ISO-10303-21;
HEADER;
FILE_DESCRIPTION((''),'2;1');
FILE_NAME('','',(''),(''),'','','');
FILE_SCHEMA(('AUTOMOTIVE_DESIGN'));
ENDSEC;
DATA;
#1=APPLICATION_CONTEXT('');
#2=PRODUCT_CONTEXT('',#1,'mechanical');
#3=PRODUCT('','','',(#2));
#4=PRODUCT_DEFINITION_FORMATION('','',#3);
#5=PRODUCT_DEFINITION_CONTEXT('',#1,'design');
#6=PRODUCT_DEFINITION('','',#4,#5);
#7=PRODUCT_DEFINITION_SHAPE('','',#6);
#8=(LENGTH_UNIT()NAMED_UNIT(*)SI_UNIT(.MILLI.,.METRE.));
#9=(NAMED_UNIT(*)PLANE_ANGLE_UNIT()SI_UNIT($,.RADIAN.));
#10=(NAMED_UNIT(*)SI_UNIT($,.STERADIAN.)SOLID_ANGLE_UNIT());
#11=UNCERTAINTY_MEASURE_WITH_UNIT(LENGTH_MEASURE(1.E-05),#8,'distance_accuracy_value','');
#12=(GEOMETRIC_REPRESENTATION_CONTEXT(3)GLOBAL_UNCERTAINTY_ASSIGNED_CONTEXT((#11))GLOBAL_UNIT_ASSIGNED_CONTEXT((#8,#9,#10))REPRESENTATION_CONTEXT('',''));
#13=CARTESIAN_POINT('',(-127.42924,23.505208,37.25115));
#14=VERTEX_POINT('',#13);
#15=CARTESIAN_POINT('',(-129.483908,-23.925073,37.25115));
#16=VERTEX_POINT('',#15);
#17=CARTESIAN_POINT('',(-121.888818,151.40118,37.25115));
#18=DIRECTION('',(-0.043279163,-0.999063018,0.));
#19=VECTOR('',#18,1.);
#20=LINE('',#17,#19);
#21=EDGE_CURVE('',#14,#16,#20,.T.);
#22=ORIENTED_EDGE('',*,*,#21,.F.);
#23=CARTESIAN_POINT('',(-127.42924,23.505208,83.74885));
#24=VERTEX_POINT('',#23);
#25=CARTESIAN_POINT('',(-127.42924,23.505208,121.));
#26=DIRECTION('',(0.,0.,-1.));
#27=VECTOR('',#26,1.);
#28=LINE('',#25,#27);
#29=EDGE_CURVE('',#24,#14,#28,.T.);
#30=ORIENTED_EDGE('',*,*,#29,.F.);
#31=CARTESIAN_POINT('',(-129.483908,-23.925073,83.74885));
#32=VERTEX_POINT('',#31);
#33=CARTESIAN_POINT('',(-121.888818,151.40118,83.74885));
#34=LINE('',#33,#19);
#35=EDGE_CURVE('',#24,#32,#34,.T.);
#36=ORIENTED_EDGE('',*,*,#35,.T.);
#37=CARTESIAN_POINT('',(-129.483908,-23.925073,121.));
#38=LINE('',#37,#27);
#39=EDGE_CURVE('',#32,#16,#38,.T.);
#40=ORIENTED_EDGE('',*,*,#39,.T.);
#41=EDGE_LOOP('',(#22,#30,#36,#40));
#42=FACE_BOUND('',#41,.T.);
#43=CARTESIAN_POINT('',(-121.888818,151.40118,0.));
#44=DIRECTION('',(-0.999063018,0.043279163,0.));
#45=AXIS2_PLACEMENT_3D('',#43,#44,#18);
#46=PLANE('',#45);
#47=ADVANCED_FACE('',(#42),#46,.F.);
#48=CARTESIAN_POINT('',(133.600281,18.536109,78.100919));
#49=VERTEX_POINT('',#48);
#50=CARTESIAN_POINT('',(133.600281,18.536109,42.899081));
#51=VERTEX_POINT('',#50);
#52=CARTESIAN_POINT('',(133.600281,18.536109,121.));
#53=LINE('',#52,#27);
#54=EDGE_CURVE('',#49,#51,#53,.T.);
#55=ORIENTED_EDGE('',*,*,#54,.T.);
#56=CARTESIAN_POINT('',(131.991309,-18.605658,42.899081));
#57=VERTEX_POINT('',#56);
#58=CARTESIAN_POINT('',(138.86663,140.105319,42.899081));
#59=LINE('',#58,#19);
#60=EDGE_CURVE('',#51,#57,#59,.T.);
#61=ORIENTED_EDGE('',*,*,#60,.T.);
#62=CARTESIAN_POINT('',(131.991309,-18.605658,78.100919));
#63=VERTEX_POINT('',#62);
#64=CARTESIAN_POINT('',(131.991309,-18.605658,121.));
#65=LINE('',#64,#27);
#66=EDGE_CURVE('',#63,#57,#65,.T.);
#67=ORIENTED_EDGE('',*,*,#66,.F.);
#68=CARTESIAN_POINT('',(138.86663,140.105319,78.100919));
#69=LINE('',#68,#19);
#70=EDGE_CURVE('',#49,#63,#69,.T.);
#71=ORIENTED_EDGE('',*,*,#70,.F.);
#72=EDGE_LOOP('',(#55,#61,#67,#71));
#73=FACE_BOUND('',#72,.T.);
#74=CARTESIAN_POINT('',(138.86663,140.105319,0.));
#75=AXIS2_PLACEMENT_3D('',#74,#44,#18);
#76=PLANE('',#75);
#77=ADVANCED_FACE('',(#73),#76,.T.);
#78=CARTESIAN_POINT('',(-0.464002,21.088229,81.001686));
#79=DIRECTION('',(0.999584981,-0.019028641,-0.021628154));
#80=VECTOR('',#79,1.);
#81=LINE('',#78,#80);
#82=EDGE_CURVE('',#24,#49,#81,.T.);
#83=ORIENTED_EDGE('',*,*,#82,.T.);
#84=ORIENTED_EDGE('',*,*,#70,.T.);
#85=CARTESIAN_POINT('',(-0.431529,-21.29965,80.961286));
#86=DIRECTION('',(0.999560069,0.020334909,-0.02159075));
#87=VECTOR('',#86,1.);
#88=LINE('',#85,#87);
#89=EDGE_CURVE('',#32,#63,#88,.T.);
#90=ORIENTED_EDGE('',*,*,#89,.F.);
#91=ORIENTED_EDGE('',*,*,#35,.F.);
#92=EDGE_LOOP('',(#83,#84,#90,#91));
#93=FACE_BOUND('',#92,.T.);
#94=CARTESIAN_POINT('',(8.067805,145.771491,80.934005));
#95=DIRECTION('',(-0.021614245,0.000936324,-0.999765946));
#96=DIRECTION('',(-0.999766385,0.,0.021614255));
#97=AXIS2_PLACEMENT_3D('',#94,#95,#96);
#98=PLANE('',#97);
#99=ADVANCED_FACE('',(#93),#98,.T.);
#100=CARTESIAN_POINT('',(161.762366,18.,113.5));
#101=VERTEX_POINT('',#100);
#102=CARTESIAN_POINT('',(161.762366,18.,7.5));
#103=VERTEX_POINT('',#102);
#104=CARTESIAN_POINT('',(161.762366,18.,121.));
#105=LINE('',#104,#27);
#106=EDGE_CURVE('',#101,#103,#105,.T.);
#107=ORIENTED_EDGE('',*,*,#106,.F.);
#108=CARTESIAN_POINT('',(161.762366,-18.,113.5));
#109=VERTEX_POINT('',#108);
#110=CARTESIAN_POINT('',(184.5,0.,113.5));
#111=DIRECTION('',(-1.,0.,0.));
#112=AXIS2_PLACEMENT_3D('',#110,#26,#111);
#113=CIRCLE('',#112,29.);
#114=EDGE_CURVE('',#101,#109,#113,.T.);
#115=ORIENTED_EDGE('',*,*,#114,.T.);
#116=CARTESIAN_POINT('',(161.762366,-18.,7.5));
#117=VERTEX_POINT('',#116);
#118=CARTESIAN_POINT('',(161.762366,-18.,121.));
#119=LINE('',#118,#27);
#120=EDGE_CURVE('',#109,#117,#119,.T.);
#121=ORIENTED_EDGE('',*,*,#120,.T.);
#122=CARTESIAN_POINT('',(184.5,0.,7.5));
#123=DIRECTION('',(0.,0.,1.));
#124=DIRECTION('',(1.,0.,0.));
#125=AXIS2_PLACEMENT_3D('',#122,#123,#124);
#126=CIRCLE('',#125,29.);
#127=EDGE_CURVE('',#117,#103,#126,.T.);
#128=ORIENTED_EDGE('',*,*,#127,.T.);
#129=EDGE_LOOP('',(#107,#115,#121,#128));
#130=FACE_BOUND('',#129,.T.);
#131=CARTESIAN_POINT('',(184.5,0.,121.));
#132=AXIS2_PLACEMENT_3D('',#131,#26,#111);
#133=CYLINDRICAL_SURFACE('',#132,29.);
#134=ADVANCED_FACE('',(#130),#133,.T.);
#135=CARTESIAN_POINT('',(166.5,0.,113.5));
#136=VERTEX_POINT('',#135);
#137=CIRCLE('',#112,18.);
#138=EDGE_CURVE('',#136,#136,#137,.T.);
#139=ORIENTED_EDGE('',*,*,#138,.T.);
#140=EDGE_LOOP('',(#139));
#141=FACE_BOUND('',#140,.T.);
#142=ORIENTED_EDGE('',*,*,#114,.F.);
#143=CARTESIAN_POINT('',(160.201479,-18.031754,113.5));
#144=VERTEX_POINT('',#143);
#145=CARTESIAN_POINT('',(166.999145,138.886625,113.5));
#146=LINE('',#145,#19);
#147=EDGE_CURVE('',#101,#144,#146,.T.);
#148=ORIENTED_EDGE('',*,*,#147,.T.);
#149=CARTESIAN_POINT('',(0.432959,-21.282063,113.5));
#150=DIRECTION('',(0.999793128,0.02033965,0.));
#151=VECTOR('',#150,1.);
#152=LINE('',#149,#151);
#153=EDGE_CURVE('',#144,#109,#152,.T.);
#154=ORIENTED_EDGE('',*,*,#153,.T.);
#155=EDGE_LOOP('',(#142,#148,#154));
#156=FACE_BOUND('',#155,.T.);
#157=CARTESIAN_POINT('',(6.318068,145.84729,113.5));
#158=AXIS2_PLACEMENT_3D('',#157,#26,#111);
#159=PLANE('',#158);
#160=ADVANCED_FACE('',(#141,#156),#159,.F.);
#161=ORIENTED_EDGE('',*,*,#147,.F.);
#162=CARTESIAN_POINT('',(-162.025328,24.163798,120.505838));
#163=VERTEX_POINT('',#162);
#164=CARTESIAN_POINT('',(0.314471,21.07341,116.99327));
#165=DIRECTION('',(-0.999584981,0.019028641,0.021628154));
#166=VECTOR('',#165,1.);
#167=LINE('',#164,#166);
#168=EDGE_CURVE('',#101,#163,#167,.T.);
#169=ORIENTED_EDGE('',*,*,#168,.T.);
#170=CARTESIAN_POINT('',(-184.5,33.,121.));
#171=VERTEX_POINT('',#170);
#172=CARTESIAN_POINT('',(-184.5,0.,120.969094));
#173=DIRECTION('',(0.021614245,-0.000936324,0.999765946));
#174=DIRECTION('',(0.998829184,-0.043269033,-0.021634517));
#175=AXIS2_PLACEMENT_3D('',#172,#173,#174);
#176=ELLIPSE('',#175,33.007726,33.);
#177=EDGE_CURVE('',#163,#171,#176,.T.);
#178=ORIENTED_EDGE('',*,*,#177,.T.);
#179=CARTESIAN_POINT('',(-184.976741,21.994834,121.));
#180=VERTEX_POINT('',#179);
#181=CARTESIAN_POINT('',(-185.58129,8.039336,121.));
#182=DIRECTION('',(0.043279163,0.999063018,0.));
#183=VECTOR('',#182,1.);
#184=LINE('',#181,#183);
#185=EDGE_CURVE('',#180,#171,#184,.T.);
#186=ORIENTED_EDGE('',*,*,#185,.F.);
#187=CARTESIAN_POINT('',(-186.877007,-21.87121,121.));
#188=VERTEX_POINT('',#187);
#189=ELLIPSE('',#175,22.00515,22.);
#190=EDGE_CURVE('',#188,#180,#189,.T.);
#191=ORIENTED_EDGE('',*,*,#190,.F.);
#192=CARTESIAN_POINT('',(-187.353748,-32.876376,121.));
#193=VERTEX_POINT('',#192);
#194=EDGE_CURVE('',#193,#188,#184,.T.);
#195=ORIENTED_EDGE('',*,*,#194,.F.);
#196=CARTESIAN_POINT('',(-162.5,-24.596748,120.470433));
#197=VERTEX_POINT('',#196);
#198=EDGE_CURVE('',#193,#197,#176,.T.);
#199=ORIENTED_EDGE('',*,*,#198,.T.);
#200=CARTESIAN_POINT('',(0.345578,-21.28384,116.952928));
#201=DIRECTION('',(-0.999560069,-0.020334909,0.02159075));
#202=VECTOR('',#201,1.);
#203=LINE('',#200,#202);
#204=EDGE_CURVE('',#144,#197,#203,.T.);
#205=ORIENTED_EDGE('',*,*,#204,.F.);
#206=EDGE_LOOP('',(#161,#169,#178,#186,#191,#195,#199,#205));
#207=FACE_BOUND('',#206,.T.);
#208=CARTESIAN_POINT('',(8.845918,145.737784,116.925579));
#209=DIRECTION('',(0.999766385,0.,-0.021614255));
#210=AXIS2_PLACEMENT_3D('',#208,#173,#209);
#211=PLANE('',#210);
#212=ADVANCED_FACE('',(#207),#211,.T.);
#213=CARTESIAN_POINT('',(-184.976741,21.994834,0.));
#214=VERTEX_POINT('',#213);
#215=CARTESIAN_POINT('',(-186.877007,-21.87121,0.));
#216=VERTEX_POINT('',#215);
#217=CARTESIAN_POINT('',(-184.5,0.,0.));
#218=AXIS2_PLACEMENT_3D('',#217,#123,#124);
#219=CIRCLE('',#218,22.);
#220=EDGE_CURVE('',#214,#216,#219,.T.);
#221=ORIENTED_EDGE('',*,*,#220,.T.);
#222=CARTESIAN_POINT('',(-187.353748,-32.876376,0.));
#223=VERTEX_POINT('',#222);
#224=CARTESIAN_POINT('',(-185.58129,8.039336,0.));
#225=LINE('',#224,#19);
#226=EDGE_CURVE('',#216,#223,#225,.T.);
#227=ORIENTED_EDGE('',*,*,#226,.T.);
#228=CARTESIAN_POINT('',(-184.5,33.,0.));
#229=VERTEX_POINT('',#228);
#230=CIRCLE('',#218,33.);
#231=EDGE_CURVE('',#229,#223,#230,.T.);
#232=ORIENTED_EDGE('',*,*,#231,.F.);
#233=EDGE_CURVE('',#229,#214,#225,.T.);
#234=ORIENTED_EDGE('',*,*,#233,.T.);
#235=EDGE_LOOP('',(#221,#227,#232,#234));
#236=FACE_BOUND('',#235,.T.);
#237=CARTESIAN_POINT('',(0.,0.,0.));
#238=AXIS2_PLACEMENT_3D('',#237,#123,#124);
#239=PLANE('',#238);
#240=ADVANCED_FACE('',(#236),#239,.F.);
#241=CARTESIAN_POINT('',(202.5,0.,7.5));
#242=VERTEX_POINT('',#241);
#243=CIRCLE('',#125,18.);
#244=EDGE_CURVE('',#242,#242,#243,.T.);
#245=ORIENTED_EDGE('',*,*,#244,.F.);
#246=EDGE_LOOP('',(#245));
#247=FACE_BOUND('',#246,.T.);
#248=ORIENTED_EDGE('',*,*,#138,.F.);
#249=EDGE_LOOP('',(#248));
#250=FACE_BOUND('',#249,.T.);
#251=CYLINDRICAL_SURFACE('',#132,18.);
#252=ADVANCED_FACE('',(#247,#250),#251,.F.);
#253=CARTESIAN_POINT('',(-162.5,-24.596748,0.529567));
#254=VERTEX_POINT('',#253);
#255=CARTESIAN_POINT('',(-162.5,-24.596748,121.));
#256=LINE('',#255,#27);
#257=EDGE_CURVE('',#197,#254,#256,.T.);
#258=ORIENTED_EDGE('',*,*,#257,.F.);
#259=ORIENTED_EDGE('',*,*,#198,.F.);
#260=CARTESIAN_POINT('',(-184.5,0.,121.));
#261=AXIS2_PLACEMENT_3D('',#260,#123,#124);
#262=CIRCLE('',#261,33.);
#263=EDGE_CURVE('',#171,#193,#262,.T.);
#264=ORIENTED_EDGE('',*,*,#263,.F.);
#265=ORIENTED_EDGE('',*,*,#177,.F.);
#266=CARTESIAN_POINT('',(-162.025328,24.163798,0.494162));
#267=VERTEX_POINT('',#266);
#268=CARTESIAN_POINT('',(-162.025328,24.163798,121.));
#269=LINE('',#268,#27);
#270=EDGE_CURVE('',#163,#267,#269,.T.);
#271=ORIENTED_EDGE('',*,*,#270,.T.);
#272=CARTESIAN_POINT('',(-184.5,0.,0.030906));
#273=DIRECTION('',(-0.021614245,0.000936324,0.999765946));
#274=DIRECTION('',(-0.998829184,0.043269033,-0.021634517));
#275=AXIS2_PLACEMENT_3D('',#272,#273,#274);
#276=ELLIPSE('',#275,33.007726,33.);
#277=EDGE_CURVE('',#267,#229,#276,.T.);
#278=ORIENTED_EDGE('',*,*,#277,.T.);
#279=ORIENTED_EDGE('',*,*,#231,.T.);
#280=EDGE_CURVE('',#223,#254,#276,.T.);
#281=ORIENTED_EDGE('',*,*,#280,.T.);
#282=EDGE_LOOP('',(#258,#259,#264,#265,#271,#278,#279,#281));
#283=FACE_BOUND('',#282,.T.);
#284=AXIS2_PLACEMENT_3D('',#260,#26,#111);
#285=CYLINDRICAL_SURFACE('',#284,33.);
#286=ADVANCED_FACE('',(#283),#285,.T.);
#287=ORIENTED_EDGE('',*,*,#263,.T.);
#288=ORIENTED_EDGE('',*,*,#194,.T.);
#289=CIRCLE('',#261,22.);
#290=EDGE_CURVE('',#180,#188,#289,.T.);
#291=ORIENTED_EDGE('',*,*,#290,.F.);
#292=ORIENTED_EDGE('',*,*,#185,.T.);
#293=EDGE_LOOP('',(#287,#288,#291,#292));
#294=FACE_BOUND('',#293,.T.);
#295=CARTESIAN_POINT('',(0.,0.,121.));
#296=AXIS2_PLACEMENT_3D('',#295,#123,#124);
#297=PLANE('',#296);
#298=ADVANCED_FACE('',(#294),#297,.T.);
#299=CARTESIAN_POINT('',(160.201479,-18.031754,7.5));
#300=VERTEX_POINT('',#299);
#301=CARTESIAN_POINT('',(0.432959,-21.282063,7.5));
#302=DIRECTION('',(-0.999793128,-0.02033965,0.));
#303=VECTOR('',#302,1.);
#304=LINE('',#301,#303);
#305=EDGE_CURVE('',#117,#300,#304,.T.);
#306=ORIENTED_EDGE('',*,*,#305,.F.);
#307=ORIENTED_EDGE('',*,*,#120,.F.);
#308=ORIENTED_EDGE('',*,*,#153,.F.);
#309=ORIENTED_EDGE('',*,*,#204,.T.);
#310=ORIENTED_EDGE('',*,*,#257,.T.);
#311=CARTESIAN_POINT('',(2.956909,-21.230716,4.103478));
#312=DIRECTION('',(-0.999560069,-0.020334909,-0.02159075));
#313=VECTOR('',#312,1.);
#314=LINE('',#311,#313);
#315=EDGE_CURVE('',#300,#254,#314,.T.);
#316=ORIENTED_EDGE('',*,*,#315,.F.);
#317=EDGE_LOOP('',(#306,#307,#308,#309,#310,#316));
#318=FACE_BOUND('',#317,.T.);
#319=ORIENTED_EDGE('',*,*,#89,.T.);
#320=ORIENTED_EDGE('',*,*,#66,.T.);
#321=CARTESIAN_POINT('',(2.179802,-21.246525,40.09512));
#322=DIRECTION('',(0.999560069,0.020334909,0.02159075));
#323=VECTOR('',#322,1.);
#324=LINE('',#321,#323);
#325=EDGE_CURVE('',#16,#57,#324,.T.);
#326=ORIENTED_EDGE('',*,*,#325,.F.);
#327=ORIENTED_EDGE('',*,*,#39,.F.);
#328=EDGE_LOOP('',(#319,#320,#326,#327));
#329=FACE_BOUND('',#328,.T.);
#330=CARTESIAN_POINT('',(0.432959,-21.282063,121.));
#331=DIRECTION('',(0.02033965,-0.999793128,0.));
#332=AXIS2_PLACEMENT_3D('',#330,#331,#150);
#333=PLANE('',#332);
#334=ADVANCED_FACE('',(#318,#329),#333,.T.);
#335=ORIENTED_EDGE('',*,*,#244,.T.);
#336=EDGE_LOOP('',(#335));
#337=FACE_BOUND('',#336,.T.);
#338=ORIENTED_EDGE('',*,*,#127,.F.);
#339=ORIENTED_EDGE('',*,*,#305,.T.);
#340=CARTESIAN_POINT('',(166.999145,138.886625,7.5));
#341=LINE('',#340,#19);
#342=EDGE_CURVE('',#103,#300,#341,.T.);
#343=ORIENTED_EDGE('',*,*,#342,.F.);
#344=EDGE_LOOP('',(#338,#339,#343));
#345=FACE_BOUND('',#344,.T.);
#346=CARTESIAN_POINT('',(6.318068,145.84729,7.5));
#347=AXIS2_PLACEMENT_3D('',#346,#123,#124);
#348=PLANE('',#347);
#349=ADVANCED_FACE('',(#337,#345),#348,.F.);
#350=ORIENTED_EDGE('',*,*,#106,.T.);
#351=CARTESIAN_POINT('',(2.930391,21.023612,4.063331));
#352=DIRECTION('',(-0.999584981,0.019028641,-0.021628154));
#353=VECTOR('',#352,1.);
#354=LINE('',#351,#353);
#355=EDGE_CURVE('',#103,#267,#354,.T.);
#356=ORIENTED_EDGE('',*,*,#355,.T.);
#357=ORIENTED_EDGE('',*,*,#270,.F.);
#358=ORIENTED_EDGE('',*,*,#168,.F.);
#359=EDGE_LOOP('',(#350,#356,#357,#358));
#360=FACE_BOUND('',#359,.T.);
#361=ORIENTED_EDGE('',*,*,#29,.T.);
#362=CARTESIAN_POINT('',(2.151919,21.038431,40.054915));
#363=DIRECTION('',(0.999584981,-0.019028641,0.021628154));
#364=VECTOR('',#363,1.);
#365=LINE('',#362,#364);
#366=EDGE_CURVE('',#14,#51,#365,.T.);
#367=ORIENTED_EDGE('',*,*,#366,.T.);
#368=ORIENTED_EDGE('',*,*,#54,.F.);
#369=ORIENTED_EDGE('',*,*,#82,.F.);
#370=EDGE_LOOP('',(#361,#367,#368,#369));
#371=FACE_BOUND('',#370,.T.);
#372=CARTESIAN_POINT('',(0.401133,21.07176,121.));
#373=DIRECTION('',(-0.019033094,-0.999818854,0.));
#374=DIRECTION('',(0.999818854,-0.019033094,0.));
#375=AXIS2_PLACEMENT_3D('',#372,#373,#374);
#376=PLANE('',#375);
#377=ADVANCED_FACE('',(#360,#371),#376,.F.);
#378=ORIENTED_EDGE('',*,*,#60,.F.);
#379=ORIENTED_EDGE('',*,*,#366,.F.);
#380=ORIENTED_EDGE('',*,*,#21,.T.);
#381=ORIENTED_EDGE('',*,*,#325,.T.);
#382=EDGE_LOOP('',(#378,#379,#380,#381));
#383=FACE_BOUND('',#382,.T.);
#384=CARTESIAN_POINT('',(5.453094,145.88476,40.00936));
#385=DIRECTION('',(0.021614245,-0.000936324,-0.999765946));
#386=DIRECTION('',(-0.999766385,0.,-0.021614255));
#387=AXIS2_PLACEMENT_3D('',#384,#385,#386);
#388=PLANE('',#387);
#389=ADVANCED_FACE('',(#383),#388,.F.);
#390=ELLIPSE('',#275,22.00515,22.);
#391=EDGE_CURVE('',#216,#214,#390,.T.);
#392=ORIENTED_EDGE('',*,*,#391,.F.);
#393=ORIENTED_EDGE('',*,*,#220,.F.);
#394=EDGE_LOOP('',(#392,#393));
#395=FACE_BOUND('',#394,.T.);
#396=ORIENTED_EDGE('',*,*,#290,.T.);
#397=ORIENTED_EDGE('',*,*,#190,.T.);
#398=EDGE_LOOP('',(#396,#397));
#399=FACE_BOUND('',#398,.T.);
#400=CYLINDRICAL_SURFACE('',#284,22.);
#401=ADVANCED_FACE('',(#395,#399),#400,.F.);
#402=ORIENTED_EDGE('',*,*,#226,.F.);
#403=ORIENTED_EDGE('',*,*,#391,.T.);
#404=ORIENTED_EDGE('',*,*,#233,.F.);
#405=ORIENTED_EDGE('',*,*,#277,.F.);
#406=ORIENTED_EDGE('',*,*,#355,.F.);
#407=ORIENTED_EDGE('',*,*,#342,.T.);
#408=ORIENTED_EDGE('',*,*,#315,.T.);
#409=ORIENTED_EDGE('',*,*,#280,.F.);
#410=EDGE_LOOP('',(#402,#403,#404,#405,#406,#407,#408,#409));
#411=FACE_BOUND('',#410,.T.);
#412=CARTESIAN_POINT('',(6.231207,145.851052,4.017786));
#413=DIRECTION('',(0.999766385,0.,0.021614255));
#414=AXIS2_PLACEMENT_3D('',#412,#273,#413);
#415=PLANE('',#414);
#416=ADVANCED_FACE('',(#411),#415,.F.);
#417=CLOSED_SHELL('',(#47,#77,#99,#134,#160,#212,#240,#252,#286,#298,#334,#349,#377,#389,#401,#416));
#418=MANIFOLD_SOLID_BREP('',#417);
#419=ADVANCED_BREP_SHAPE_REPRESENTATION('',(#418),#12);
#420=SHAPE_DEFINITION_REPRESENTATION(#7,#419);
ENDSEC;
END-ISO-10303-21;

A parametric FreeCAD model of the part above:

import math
import FreeCAD as App
import Part
import Sketcher

V = App.Vector


def add_polygon(sketch, points):
    """Adds a closed chain of lines whose ends are joined by coincident constraints."""
    first, n = sketch.GeometryCount, len(points)
    for a, b in zip(points, points[1:] + points[:1]):
        sketch.addGeometry(Part.LineSegment(App.Vector(*a, 0), App.Vector(*b, 0)), False)
    for i in range(n):
        sketch.addConstraint(Sketcher.Constraint("Coincident", first + i, 2, first + (i + 1) % n, 1))

doc = App.newDocument("Part")
params = doc.addObject("Spreadsheet::Sheet", "Params")
for row, (alias, value) in enumerate([
    ("sketch1_diameter", "44 mm"),
    ("sketch1_diameter2", "36 mm"),
    ("sketch1_radius", "33 mm"),
    ("sketch1_radius2", "29 mm"),
    ("sketch1_width", "22 mm"),
    ("pad1_length", "121 mm"),
], start=1):
    params.set(f"A{row}", alias)
    params.set(f"B{row}", "=" + value)
    params.setAlias(f"B{row}", alias)

body = doc.addObject("PartDesign::Body", "Body")

# Sketch on XY plane
sketch1 = body.newObject("Sketcher::SketchObject", "Sketch")
sketch1.AttachmentSupport = (doc.getObject("XY_Plane"), [""])
sketch1.MapMode = "FlatFace"
sketch1.addGeometry(Part.LineSegment(V(162, 18, 0), V(-162, 24, 0)), False)
sketch1.addGeometry(Part.ArcOfCircle(Part.Circle(V(-184, 0, 0), V(0, 0, 1), 33), math.radians(47), math.radians(312)), False)
sketch1.addGeometry(Part.LineSegment(V(-162, -25, 0), V(162, -18, 0)), False)
sketch1.addGeometry(Part.ArcOfCircle(Part.Circle(V(184, 0, 0), V(0, 0, 1), 29), math.radians(-142), math.radians(142)), False)
sketch1.addGeometry(Part.Circle(V(-184, 0, 0), V(0, 0, 1), 22), False)
sketch1.addGeometry(Part.Circle(V(184, 0, 0), V(0, 0, 1), 18), False)
sketch1.addConstraint(Sketcher.Constraint("Coincident", 0, 2, 1, 1))
sketch1.addConstraint(Sketcher.Constraint("Coincident", 1, 2, 2, 1))
sketch1.addConstraint(Sketcher.Constraint("Coincident", 2, 2, 3, 1))
sketch1.addConstraint(Sketcher.Constraint("Coincident", 3, 2, 0, 1))
sketch1.addConstraint(Sketcher.Constraint("Coincident", 4, 3, 1, 3))
sketch1.addConstraint(Sketcher.Constraint("Coincident", 5, 3, 3, 3))
sketch1.addConstraint(Sketcher.Constraint("Symmetric", 1, 3, 3, 3, -1, 1))
sketch1.addConstraint(Sketcher.Constraint("Symmetric", 2, 2, 3, 2, -1))
sketch1.addConstraint(Sketcher.Constraint("Diameter", 4, 44.0))
sketch1.addConstraint(Sketcher.Constraint("Diameter", 5, 36.0))
sketch1.addConstraint(Sketcher.Constraint("Radius", 1, 33.0))
sketch1.addConstraint(Sketcher.Constraint("Radius", 3, 29.0))
sketch1.addConstraint(Sketcher.Constraint("DistanceY", 2, 2, -1, 1, 18.0))
sketch1.addConstraint(Sketcher.Constraint("DistanceX", 1, 3, 3, 3, 369.0))
sketch1.addConstraint(Sketcher.Constraint("DistanceX", 1, 3, 1, 2, 22.0))
sketch1.addConstraint(Sketcher.Constraint("DistanceY", -1, 1, 0, 2, 24.163798))
sketch1.setExpression("Constraints[8]", "Params.sketch1_diameter")
sketch1.setExpression("Constraints[9]", "Params.sketch1_diameter2")
sketch1.setExpression("Constraints[10]", "Params.sketch1_radius")
sketch1.setExpression("Constraints[11]", "Params.sketch1_radius2")
sketch1.setExpression("Constraints[14]", "Params.sketch1_width")
pad1 = body.newObject("PartDesign::Pad", "Pad")
pad1.Profile = sketch1
pad1.setExpression("Length", "Params.pad1_length")

# Sketch on an angled plane
sketch2 = body.newObject("Sketcher::SketchObject", "Sketch001")
sketch2.Placement = App.Placement(V(1.08129, 24.960664, 0), App.Rotation(V(0.999063018, -0.043279163, 0), V(0, 0, -1), V(0.043279163, 0.999063018, 0), "ZXY"))
add_polygon(sketch2, [(-186, 0), (161, -7), (275, -7), (275, 54), (-287, 54), (-287, 0)])  # lines 0-5
add_polygon(sketch2, [(275, -113), (161, -113), (-186, -121), (-287, -121), (-287, -185), (275, -185)])  # lines 6-11
sketch2.addConstraint(Sketcher.Constraint("Horizontal", 1))
sketch2.addConstraint(Sketcher.Constraint("Vertical", 2))
sketch2.addConstraint(Sketcher.Constraint("Horizontal", 3))
sketch2.addConstraint(Sketcher.Constraint("Vertical", 4))
sketch2.addConstraint(Sketcher.Constraint("Horizontal", 5))
sketch2.addConstraint(Sketcher.Constraint("Horizontal", 6))
sketch2.addConstraint(Sketcher.Constraint("Horizontal", 8))
sketch2.addConstraint(Sketcher.Constraint("Vertical", 9))
sketch2.addConstraint(Sketcher.Constraint("Horizontal", 10))
sketch2.addConstraint(Sketcher.Constraint("Vertical", 11))
sketch2.addConstraint(Sketcher.Constraint("PointOnObject", 4, 2, -1))
sketch2.addConstraint(Sketcher.Constraint("Vertical", 0, 2, 6, 2))
sketch2.addConstraint(Sketcher.Constraint("Vertical", 5, 2, 7, 2))
sketch2.addConstraint(Sketcher.Constraint("Vertical", 4, 2, 8, 2))
sketch2.addConstraint(Sketcher.Constraint("Vertical", 2, 2, 10, 2))
sketch2.addConstraint(Sketcher.Constraint("Equal", 0, 7))
sketch2.addConstraint(Sketcher.Constraint("DistanceY", 7, 2, -1, 1, 121.0))
sketch2.addConstraint(Sketcher.Constraint("DistanceY", 6, 2, 0, 2, 106.0))
sketch2.addConstraint(Sketcher.Constraint("DistanceX", 1, 1, 1, 2, 114.407318))
sketch2.addConstraint(Sketcher.Constraint("DistanceX", 3, 2, 3, 1, 561.822479))
sketch2.addConstraint(Sketcher.Constraint("DistanceX", 5, 1, 5, 2, 100.828049))
sketch2.addConstraint(Sketcher.Constraint("DistanceY", 2, 1, 2, 2, 61.958825))
sketch2.addConstraint(Sketcher.Constraint("DistanceY", 9, 2, 9, 1, 63.896958))
sketch2.addConstraint(Sketcher.Constraint("DistanceX", -1, 1, 1, 2, 275.239091))
pocket1 = body.newObject("PartDesign::Pocket", "Pocket")
pocket1.Profile = sketch2
pocket1.Type = "ThroughAll"
pocket1.Midplane = True

# Sketch on an angled plane
sketch3 = body.newObject("Sketcher::SketchObject", "Sketch002")
sketch3.Placement = App.Placement(V(1.08129, 24.960664, 0), App.Rotation(V(0.999063018, -0.043279163, 0), V(0, 0, -1), V(0.043279163, 0.999063018, 0), "ZXY"))
add_polygon(sketch3, [(133, -43), (-128, -37), (-128, -84), (133, -78)])  # lines 0-3
sketch3.addConstraint(Sketcher.Constraint("Vertical", 1))
sketch3.addConstraint(Sketcher.Constraint("Vertical", 3))
sketch3.addConstraint(Sketcher.Constraint("Equal", 0, 2))
sketch3.addConstraint(Sketcher.Constraint("DistanceX", 1, 2, 2, 2, 261.0))
sketch3.addConstraint(Sketcher.Constraint("DistanceY", 1, 2, 1, 1, 46.497699))
sketch3.addConstraint(Sketcher.Constraint("DistanceY", 3, 1, 3, 2, 35.201838))
sketch3.addConstraint(Sketcher.Constraint("DistanceY", 0, 2, -1, 1, 37.25115))
sketch3.addConstraint(Sketcher.Constraint("DistanceX", 0, 2, -1, 1, 128.327127))
pocket2 = body.newObject("PartDesign::Pocket", "Pocket001")
pocket2.Profile = sketch3
pocket2.Type = "ThroughAll"
pocket2.Midplane = True

doc.recompute()
